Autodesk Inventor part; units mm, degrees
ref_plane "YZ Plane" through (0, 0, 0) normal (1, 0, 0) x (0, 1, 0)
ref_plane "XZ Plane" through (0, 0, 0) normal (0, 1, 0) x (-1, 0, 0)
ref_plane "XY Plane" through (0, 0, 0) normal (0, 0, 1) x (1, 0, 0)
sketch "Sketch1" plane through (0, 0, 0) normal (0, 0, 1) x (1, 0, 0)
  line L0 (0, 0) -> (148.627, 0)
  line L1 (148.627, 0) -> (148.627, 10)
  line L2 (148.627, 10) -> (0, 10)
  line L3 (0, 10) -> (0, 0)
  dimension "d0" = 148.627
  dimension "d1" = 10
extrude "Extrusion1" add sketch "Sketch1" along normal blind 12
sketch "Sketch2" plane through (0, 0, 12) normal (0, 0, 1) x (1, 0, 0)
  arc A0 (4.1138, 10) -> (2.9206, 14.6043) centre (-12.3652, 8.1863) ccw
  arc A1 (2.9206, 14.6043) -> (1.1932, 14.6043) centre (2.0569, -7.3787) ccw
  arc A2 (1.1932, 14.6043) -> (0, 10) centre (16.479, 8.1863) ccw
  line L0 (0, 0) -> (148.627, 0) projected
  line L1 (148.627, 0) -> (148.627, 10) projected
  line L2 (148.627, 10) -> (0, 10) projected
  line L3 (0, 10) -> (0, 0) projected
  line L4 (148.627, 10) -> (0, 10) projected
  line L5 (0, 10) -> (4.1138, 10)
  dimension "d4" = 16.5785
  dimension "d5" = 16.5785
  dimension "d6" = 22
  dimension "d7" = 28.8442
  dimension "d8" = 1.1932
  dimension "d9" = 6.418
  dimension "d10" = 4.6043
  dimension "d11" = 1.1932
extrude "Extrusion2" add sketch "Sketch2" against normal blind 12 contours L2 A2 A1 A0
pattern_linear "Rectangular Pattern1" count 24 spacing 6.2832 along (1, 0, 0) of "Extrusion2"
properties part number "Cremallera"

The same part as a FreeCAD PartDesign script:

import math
import FreeCAD as App
import Part
import Sketcher

doc = App.newDocument("Part")
body = doc.addObject("PartDesign::Body", "Body")

# Sketch on XY plane
sketch1 = body.newObject("Sketcher::SketchObject", "Sketch")
sketch1.AttachmentSupport = (doc.getObject("XY_Plane"), [""])
sketch1.MapMode = "FlatFace"
sketch1.addGeometry(Part.LineSegment(App.Vector(0, 10, 0), App.Vector(0, 0, 0)), False)
sketch1.addGeometry(Part.LineSegment(App.Vector(0, 0, 0), App.Vector(148.627, 0, 0)), False)
sketch1.addGeometry(Part.LineSegment(App.Vector(148.627, 0, 0), App.Vector(148.627, 10, 0)), False)
sketch1.addGeometry(Part.LineSegment(App.Vector(148.627, 10, 0), App.Vector(0, 10, 0)), False)
sketch1.addConstraint(Sketcher.Constraint("Coincident", 0, 2, 1, 1))
sketch1.addConstraint(Sketcher.Constraint("Coincident", 1, 2, 2, 1))
sketch1.addConstraint(Sketcher.Constraint("Coincident", 2, 2, 3, 1))
sketch1.addConstraint(Sketcher.Constraint("Coincident", 3, 2, 0, 1))
sketch1.addConstraint(Sketcher.Constraint("Vertical", 0))
sketch1.addConstraint(Sketcher.Constraint("Horizontal", 1))
sketch1.addConstraint(Sketcher.Constraint("Vertical", 2))
sketch1.addConstraint(Sketcher.Constraint("Horizontal", 3))
sketch1.addConstraint(Sketcher.Constraint("Coincident", 0, 2, -1, 1))
sketch1.addConstraint(Sketcher.Constraint("DistanceY", 0, 2, 0, 1, 10.0))
sketch1.addConstraint(Sketcher.Constraint("DistanceX", 1, 1, 1, 2, 148.627))
pad1 = body.newObject("PartDesign::Pad", "Pad")
pad1.Profile = sketch1
pad1.Length = 12

# Sketch on XY plane
sketch2 = body.newObject("Sketcher::SketchObject", "Sketch001")
sketch2.AttachmentSupport = (doc.getObject("XY_Plane"), [""])
sketch2.MapMode = "FlatFace"
sketch2.AttachmentOffset = App.Placement(App.Vector(0, 0, 12), App.Rotation())
sketch2.addGeometry(Part.LineSegment(App.Vector(0, 10, 0), App.Vector(4.1138, 10, 0)), False)
sketch2.addGeometry(Part.ArcOfCircle(Part.Circle(App.Vector(-12.3652, 8.1863, 0), App.Vector(0, 0, 1), 16.578509), math.radians(6.280768), math.radians(22.775918)), False)
sketch2.addGeometry(Part.ArcOfCircle(Part.Circle(App.Vector(2.0569, -7.3787, 0), App.Vector(0, 0, 1), 21.999961), math.radians(87.750038), math.radians(92.249962)), False)
sketch2.addGeometry(Part.ArcOfCircle(Part.Circle(App.Vector(16.479, 8.1863, 0), App.Vector(0, 0, 1), 16.578492), math.radians(157.224082), math.radians(173.719232)), False)
sketch2.addConstraint(Sketcher.Constraint("Coincident", 0, 2, 1, 1))
sketch2.addConstraint(Sketcher.Constraint("Coincident", 1, 2, 2, 1))
sketch2.addConstraint(Sketcher.Constraint("Coincident", 2, 2, 3, 1))
sketch2.addConstraint(Sketcher.Constraint("Coincident", 3, 2, 0, 1))
sketch2.addConstraint(Sketcher.Constraint("Horizontal", 0))
sketch2.addConstraint(Sketcher.Constraint("Equal", 1, 3))
sketch2.addConstraint(Sketcher.Constraint("PointOnObject", 3, 2, -2))
sketch2.addConstraint(Sketcher.Constraint("Horizontal", 1, 3, 3, 3))
sketch2.addConstraint(Sketcher.Constraint("Horizontal", 1, 2, 2, 2))
sketch2.addConstraint(Sketcher.Constraint("Radius", 2, 22.0))
sketch2.addConstraint(Sketcher.Constraint("Radius", 1, 16.5785))
sketch2.addConstraint(Sketcher.Constraint("DistanceY", -1, 1, 0, 2, 10.0))
sketch2.addConstraint(Sketcher.Constraint("DistanceY", 3, 3, 1, 2, 6.418))
sketch2.addConstraint(Sketcher.Constraint("DistanceX", -1, 1, 2, 2, 1.1932))
sketch2.addConstraint(Sketcher.Constraint("DistanceX", 1, 3, 3, 3, 28.8442))
pad2 = body.newObject("PartDesign::Pad", "Pad001")
pad2.Profile = sketch2
pad2.Length = 12
pad2.Reversed = True
doc.recompute()

linearpattern = body.newObject("PartDesign::LinearPattern", "LinearPattern")
linearpattern.Originals = [pad2]
linearpattern.Direction = (doc.getObject("X_Axis"), [""])
linearpattern.Mode = "offset"
linearpattern.Offset = 6.2832
linearpattern.Occurrences = 24
body.Tip = linearpattern

doc.recompute()
